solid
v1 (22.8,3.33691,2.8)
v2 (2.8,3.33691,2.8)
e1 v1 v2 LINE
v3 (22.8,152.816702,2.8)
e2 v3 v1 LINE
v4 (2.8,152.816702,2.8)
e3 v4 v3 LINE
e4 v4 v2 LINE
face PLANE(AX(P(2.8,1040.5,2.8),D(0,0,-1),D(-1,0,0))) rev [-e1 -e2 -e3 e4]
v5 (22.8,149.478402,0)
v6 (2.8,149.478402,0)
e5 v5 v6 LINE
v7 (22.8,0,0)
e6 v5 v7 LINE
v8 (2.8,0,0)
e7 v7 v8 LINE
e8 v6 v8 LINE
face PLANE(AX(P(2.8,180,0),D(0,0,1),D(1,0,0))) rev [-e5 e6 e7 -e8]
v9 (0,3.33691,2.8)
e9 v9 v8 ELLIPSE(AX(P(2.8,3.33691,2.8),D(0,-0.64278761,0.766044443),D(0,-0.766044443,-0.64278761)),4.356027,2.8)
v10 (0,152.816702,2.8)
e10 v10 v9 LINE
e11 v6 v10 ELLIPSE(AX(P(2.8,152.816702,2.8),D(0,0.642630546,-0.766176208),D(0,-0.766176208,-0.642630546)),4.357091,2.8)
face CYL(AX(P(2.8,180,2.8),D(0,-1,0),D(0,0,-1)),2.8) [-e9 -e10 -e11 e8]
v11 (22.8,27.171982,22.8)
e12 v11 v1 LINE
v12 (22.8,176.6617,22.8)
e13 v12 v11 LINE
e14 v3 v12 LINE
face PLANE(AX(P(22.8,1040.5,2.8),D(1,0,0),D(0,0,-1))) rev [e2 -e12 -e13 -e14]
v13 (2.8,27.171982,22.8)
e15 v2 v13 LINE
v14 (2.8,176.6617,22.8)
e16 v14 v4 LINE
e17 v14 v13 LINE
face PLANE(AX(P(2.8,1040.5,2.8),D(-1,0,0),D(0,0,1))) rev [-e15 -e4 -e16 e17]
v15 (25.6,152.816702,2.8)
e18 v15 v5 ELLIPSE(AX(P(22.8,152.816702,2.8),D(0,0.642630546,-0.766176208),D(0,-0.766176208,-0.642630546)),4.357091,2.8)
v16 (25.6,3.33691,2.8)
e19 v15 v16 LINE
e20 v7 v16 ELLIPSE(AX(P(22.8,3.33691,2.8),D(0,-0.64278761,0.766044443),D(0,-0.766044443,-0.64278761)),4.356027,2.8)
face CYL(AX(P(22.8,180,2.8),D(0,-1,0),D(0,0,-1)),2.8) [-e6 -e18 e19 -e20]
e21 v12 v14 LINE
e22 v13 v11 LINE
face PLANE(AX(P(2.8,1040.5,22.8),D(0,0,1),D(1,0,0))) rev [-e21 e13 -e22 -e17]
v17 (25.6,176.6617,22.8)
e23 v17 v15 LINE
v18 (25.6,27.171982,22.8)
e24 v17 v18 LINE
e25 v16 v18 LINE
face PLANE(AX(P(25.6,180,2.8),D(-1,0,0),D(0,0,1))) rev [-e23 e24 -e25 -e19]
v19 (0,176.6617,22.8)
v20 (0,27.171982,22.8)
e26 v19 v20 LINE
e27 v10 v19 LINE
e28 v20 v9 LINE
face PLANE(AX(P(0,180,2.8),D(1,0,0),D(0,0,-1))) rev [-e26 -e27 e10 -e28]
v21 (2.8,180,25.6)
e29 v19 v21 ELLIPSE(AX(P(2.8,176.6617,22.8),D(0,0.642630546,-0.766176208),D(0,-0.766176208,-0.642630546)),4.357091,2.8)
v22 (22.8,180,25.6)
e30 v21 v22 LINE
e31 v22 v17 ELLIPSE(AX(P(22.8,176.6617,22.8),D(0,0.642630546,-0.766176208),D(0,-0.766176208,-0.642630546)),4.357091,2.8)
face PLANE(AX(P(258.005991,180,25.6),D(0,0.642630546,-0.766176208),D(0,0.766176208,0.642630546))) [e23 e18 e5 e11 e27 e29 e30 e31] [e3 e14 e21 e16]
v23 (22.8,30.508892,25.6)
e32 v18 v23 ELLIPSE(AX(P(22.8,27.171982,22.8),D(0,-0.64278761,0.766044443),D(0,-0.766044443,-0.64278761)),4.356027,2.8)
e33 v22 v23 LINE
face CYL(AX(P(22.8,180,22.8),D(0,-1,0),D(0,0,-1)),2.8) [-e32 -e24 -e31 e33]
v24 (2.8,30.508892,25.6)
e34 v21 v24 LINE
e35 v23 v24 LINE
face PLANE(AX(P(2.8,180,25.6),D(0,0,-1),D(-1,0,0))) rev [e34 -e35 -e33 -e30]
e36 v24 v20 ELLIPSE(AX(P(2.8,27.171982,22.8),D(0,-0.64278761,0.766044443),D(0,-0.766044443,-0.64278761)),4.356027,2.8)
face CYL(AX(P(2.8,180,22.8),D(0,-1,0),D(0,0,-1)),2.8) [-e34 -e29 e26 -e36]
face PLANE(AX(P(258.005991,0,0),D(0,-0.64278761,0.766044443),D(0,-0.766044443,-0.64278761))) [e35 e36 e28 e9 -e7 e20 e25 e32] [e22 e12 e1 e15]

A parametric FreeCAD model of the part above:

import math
import FreeCAD as App
import Part
import Sketcher
from FreeCAD import Vector
Q = App.Units.Quantity


def add_polygon(sketch, points):
    """Adds a closed chain of lines whose ends are joined by coincident constraints."""
    first, n = sketch.GeometryCount, len(points)
    for a, b in zip(points, points[1:] + points[:1]):
        sketch.addGeometry(Part.LineSegment(App.Vector(*a, 0), App.Vector(*b, 0)), False)
    for i in range(n):
        sketch.addConstraint(Sketcher.Constraint("Coincident", first + i, 2, first + (i + 1) % n, 1))

doc = App.newDocument("Part")
params = doc.addObject("Spreadsheet::Sheet", "Params")
for row, (alias, value) in enumerate([
    ("sketch1_radius", "2.8 mm"),
    ("sketch1_width", "20 mm"),
    ("pad1_length", "180 mm"),
    ("sketch2_width", "20 mm"),
    ("pocket1_length", "1040.5 mm"),
], start=1):
    params.set(f"A{row}", alias)
    params.set(f"B{row}", "=" + value)
    params.setAlias(f"B{row}", alias)

body = doc.addObject("PartDesign::Body", "Body")

# Sketch on XZ plane
sketch1 = doc.addObject("Sketcher::SketchObject", "Sketch")
body.addObject(sketch1)
sketch1.AttachmentSupport = (doc.XZ_Plane, [""])
sketch1.MapMode = "FlatFace"
sketch1.addGeometry([
    Part.LineSegment(Vector(22.8, 0, 0), Vector(2.8, 0, 0)),  # 0
    Part.ArcOfCircle(Part.Circle(Vector(2.8, 2.8, 0), Vector(0, 0, 1), 2.8), math.radians(-180), math.radians(-90)),  # 1
    Part.LineSegment(Vector(0, 2.8, 0), Vector(0, 22.8, 0)),  # 2
    Part.ArcOfCircle(Part.Circle(Vector(2.8, 22.8, 0), Vector(0, 0, 1), 2.8), math.radians(90), math.radians(180)),  # 3
    Part.LineSegment(Vector(2.8, 25.6, 0), Vector(22.8, 25.6, 0)),  # 4
    Part.ArcOfCircle(Part.Circle(Vector(22.8, 22.8, 0), Vector(0, 0, 1), 2.8), math.radians(0), math.radians(90)),  # 5
    Part.LineSegment(Vector(25.6, 22.8, 0), Vector(25.6, 2.8, 0)),  # 6
    Part.ArcOfCircle(Part.Circle(Vector(22.8, 2.8, 0), Vector(0, 0, 1), 2.8), math.radians(-90), math.radians(0)),  # 7
], False)
sketch1.addConstraint([
    Sketcher.Constraint("Tangent", 0, 2, 1, 2),
    Sketcher.Constraint("Tangent", 1, 1, 2, 1),
    Sketcher.Constraint("Tangent", 2, 2, 3, 2),
    Sketcher.Constraint("Tangent", 3, 1, 4, 1),
    Sketcher.Constraint("Tangent", 4, 2, 5, 2),
    Sketcher.Constraint("Tangent", 5, 1, 6, 1),
    Sketcher.Constraint("Tangent", 6, 2, 7, 2),
    Sketcher.Constraint("Tangent", 7, 1, 0, 1),
    Sketcher.Constraint("Horizontal", 0),
    Sketcher.Constraint("Vertical", 2),
    Sketcher.Constraint("Horizontal", 4),
    Sketcher.Constraint("Vertical", 6),
    Sketcher.Constraint("Equal", 1, 3),
    Sketcher.Constraint("Equal", 3, 5),
    Sketcher.Constraint("Equal", 5, 7),
    Sketcher.Constraint("PointOnObject", 0, 2, -1),
    Sketcher.Constraint("PointOnObject", 1, 1, -2),
    Sketcher.Constraint("Equal", 4, 2),
    Sketcher.Constraint("Radius", 1, 2.8),
    Sketcher.Constraint("DistanceX", 0, 2, 0, 1, 20.0),
])
sketch1.setExpression("Constraints[18]", "Params.sketch1_radius")
sketch1.setExpression("Constraints[19]", "Params.sketch1_width")
pad1 = doc.addObject("PartDesign::Pad", "Pad")
body.addObject(pad1)
pad1.Profile = sketch1
pad1.setExpression("Length", "Params.pad1_length")
pad1.Reversed = True

# Sketch on XZ plane
sketch2 = doc.addObject("Sketcher::SketchObject", "Sketch001")
body.addObject(sketch2)
sketch2.AttachmentSupport = (doc.XZ_Plane, [""])
sketch2.MapMode = "FlatFace"
add_polygon(sketch2, [(23, 3), (23, 23), (3, 23), (3, 3)])  # lines 0-3
sketch2.addConstraint([
    Sketcher.Constraint("Vertical", 0),
    Sketcher.Constraint("Horizontal", 1),
    Sketcher.Constraint("Vertical", 2),
    Sketcher.Constraint("Horizontal", 3),
    Sketcher.Constraint("Equal", 3, 0),
    Sketcher.Constraint("DistanceX", 1, 2, 1, 1, 20.0),
    Sketcher.Constraint("DistanceX", -1, 1, 0, 2, 22.8),
    Sketcher.Constraint("DistanceY", -1, 1, 0, 2, 22.8),
])
sketch2.setExpression("Constraints[9]", "Params.sketch2_width")
pocket1 = doc.addObject("PartDesign::Pocket", "Pocket")
body.addObject(pocket1)
pocket1.Profile = sketch2
pocket1.setExpression("Length", "Params.pocket1_length")

# Sketch on YZ plane
sketch3 = doc.addObject("Sketcher::SketchObject", "Sketch002")
body.addObject(sketch3)
sketch3.AttachmentSupport = (doc.YZ_Plane, [""])
sketch3.MapMode = "FlatFace"
add_polygon(sketch3, [(-286, -240), (0, 0), (45, 38), (331, 278), (-149, 850), (-767, 332)])  # lines 0-5
sketch3.addConstraint([
    Sketcher.Constraint("Coincident", 0, 2, -1, 1),
    Sketcher.Constraint("Parallel", 0, 1),
    Sketcher.Constraint("Parallel", 1, 2),
    Sketcher.Constraint("Perpendicular", 2, 3),
    Sketcher.Constraint("Perpendicular", 3, 4),
    Sketcher.Constraint("Perpendicular", 4, 5),
    Sketcher.Constraint("Equal", 0, 2),
    Sketcher.Constraint("Angle", 0, Q("40 deg")),
    Sketcher.Constraint("DistanceX", -1, 1, 2, 2, 331.0716),
    Sketcher.Constraint("DistanceX", 4, 2, -1, 1, 766.531599),
    Sketcher.Constraint("Distance", 0, 373.622662),
])
pocket2 = doc.addObject("PartDesign::Pocket", "Pocket001")
body.addObject(pocket2)
pocket2.Profile = sketch3
pocket2.Type = "ThroughAll"
pocket2.Midplane = True

# Sketch on YZ plane
sketch4 = doc.addObject("Sketcher::SketchObject", "Sketch003")
body.addObject(sketch4)
sketch4.AttachmentSupport = (doc.YZ_Plane, [""])
sketch4.MapMode = "FlatFace"
add_polygon(sketch4, [(466, 266), (180, 26), (135, -12), (-151, -252), (329, -825), (946, -307)])  # lines 0-5
sketch4.addConstraint([
    Sketcher.Constraint("Parallel", 0, 1),
    Sketcher.Constraint("Parallel", 1, 2),
    Sketcher.Constraint("Perpendicular", 2, 3),
    Sketcher.Constraint("Perpendicular", 3, 4),
    Sketcher.Constraint("Perpendicular", 4, 5),
    Sketcher.Constraint("Equal", 0, 2),
    Sketcher.Constraint("DistanceX", -1, 1, 0, 2, 180.0),
    Sketcher.Constraint("DistanceY", -1, 1, 0, 2, 25.6),
    Sketcher.Constraint("DistanceX", 2, 2, -1, 1, 151.102998),
    Sketcher.Constraint("Distance", 0, 373.622662),
    Sketcher.Constraint("DistanceY", 2, 2, -1, 1, 252.112748),
    Sketcher.Constraint("DistanceX", -1, 1, 3, 2, 329.099672),
])
pocket3 = doc.addObject("PartDesign::Pocket", "Pocket002")
body.addObject(pocket3)
pocket3.Profile = sketch4
pocket3.Type = "ThroughAll"
pocket3.Midplane = True

doc.recompute()
